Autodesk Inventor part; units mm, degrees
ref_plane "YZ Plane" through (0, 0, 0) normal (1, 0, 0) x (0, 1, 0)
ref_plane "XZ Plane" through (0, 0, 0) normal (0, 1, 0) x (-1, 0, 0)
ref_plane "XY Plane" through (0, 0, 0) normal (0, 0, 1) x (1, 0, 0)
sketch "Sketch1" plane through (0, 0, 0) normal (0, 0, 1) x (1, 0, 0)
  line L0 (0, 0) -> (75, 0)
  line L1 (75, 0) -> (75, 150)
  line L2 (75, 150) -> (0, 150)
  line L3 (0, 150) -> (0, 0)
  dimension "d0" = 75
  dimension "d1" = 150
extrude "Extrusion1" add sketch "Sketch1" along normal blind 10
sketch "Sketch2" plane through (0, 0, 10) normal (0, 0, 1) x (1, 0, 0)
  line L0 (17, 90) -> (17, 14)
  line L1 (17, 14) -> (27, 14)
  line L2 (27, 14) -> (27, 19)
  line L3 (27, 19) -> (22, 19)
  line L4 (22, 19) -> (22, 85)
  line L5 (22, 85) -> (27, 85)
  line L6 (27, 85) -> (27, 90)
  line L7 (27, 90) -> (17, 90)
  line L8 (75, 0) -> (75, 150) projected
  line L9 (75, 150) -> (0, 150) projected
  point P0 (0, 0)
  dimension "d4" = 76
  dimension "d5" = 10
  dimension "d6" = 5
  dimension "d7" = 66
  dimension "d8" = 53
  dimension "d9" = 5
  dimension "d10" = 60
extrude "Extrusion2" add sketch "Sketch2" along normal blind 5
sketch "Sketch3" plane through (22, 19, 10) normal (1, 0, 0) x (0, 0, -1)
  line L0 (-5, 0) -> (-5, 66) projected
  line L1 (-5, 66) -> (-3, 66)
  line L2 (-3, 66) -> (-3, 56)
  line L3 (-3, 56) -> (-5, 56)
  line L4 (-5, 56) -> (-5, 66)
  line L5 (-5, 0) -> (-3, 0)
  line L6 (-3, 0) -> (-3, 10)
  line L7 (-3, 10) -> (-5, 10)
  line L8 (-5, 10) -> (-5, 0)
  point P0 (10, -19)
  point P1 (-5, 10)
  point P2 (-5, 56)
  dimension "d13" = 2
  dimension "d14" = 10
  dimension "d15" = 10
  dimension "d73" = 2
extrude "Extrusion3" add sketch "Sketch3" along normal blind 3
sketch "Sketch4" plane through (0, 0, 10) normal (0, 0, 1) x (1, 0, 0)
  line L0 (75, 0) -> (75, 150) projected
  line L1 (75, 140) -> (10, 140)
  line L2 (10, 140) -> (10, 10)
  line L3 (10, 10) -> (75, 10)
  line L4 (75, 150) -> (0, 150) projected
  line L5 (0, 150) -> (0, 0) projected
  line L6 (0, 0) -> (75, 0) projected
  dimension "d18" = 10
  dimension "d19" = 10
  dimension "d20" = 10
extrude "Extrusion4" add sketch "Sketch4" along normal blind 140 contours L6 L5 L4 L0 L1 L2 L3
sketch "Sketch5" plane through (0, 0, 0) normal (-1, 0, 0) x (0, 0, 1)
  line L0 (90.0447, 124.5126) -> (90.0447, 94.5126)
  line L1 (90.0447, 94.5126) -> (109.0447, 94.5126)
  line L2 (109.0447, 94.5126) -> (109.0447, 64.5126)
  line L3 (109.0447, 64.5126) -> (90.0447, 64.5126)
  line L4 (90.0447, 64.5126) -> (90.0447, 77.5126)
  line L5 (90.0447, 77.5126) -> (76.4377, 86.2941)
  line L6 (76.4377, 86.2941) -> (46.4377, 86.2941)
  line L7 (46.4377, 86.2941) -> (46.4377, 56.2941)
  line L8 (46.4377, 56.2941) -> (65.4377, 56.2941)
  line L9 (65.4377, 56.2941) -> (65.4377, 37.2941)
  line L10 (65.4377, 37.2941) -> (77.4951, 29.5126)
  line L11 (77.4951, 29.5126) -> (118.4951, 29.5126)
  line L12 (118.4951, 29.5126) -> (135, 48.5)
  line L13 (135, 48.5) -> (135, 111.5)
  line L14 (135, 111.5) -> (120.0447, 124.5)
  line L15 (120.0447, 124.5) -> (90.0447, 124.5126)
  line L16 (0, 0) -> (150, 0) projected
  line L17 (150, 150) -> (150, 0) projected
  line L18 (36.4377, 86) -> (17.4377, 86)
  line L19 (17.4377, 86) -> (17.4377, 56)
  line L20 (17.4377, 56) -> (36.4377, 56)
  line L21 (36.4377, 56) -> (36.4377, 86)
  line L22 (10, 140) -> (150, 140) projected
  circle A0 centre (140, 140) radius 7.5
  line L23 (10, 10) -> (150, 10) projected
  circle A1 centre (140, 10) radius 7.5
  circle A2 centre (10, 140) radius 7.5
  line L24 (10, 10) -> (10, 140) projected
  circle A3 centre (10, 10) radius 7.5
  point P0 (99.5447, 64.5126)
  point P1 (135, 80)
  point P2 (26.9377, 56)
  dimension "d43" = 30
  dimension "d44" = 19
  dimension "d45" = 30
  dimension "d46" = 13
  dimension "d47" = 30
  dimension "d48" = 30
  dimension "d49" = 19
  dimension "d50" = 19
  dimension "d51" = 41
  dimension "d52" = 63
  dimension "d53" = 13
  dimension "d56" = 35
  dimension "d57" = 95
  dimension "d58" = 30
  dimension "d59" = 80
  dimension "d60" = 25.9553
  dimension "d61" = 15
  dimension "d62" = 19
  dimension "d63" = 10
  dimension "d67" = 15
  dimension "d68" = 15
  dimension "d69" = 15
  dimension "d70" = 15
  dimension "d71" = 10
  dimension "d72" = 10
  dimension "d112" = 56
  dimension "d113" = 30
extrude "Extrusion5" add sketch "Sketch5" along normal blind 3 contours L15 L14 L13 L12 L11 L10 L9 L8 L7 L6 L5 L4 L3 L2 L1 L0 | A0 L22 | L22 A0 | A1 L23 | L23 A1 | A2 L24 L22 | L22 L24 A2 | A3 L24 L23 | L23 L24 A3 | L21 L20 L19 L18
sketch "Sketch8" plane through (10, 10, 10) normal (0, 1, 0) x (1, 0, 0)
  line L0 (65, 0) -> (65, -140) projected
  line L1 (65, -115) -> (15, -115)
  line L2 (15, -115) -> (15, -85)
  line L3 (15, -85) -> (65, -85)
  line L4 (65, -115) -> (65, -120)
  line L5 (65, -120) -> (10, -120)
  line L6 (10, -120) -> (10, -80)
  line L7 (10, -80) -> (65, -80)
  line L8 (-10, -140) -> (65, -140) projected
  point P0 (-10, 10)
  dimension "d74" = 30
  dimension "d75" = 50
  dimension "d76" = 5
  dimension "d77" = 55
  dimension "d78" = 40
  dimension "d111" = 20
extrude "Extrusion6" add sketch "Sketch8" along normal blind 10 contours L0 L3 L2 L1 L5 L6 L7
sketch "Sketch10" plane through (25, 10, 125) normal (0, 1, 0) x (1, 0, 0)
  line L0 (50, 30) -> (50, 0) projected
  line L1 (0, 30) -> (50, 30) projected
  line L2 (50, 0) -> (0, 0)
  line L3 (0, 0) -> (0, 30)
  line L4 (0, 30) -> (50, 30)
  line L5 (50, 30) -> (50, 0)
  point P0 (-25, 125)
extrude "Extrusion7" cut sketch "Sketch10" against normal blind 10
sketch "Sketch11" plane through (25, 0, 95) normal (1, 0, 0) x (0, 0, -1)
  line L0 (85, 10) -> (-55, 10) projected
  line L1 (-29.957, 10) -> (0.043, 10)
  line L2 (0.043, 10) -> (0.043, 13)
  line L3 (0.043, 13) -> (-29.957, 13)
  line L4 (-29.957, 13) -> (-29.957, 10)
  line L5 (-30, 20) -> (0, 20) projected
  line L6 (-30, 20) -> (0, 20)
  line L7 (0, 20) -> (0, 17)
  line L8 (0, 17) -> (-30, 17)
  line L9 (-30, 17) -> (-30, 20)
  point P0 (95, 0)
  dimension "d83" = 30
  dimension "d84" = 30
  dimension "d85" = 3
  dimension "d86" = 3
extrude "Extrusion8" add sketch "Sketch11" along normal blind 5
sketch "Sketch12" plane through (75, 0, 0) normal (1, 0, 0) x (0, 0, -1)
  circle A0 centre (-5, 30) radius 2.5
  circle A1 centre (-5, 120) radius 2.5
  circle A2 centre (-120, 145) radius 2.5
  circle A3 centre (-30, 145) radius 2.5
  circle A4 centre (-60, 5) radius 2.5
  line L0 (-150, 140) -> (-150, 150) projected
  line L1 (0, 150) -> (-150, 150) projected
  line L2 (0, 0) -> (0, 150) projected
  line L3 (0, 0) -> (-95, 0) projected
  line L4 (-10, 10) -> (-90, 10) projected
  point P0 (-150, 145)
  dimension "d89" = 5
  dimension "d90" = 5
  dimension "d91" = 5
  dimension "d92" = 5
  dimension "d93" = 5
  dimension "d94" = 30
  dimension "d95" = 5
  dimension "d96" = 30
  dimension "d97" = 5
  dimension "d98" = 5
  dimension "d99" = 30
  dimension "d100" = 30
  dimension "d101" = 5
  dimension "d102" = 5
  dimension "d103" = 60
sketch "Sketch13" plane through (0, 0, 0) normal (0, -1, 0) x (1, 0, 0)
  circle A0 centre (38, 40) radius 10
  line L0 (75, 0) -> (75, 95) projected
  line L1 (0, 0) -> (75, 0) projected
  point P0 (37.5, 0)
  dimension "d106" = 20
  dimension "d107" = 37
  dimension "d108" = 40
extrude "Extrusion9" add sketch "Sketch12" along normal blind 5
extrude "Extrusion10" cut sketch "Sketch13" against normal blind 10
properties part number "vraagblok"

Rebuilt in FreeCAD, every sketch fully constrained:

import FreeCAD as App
import Part
import Sketcher
Q = App.Units.Quantity


def add_polygon(sketch, points):
    """Adds a closed chain of lines whose ends are joined by coincident constraints."""
    first, n = sketch.GeometryCount, len(points)
    for a, b in zip(points, points[1:] + points[:1]):
        sketch.addGeometry(Part.LineSegment(App.Vector(*a, 0), App.Vector(*b, 0)), False)
    for i in range(n):
        sketch.addConstraint(Sketcher.Constraint("Coincident", first + i, 2, first + (i + 1) % n, 1))

doc = App.newDocument("Part")
body = doc.addObject("PartDesign::Body", "Body")

sketch1 = doc.addObject("Sketcher::SketchObject", "Sketch")
body.addObject(sketch1)
sketch1.AttachmentSupport = (doc.XY_Plane, [""])
sketch1.MapMode = "FlatFace"
add_polygon(sketch1, [(0, 150), (0, 0), (75, 0), (75, 150)])
sketch1.addConstraint(Sketcher.Constraint("Vertical", 0))
sketch1.addConstraint(Sketcher.Constraint("Horizontal", 1))
sketch1.addConstraint(Sketcher.Constraint("Vertical", 2))
sketch1.addConstraint(Sketcher.Constraint("Horizontal", 3))
sketch1.addConstraint(Sketcher.Constraint("Coincident", 0, 2, -1, 1))
sketch1.addConstraint(Sketcher.Constraint("DistanceX", 1, 1, 1, 2, Q("75 mm")))
sketch1.addConstraint(Sketcher.Constraint("DistanceY", 0, 2, 0, 1, Q("150 mm")))
pad1 = doc.addObject("PartDesign::Pad", "Pad")
body.addObject(pad1)
pad1.Profile = sketch1
pad1.Length = 10

sketch2 = doc.addObject("Sketcher::SketchObject", "Sketch001")
body.addObject(sketch2)
sketch2.AttachmentSupport = (doc.XY_Plane, [""])
sketch2.MapMode = "FlatFace"
sketch2.AttachmentOffset = App.Placement(App.Vector(0, 0, 10), App.Rotation())
add_polygon(sketch2, [(27, 90), (17, 90), (17, 14), (27, 14), (27, 19), (22, 19), (22, 85), (27, 85)])
sketch2.addConstraint(Sketcher.Constraint("Horizontal", 0))
sketch2.addConstraint(Sketcher.Constraint("Vertical", 1))
sketch2.addConstraint(Sketcher.Constraint("Horizontal", 2))
sketch2.addConstraint(Sketcher.Constraint("Vertical", 3))
sketch2.addConstraint(Sketcher.Constraint("Horizontal", 4))
sketch2.addConstraint(Sketcher.Constraint("Vertical", 5))
sketch2.addConstraint(Sketcher.Constraint("Horizontal", 6))
sketch2.addConstraint(Sketcher.Constraint("Vertical", 7))
sketch2.addConstraint(Sketcher.Constraint("Vertical", 3, 2, 6, 2))
sketch2.addConstraint(Sketcher.Constraint("Equal", 6, 3))
sketch2.addConstraint(Sketcher.Constraint("Equal", 3, 7))
sketch2.addConstraint(Sketcher.Constraint("DistanceX", 0, 2, 0, 1, Q("10 mm")))
sketch2.addConstraint(Sketcher.Constraint("DistanceX", 4, 2, 4, 1, Q("5 mm")))
sketch2.addConstraint(Sketcher.Constraint("DistanceY", 1, 2, 1, 1, Q("76 mm")))
sketch2.addConstraint(Sketcher.Constraint("DistanceX", -1, 1, 0, 2, Q("17 mm")))
sketch2.addConstraint(Sketcher.Constraint("DistanceY", -1, 1, 0, 2, Q("90 mm")))
pad2 = doc.addObject("PartDesign::Pad", "Pad001")
body.addObject(pad2)
pad2.Profile = sketch2
pad2.Length = 5

sketch3 = doc.addObject("Sketcher::SketchObject", "Sketch002")
body.addObject(sketch3)
sketch3.AttachmentSupport = (doc.YZ_Plane, [""])
sketch3.MapMode = "FlatFace"
sketch3.AttachmentOffset = App.Placement(App.Vector(0, 0, 22), App.Rotation())
add_polygon(sketch3, [(85, 15), (75, 15), (75, 13), (85, 13)])
add_polygon(sketch3, [(29, 15), (19, 15), (19, 13), (29, 13)])
sketch3.addConstraint(Sketcher.Constraint("Horizontal", 0))
sketch3.addConstraint(Sketcher.Constraint("Vertical", 1))
sketch3.addConstraint(Sketcher.Constraint("Horizontal", 2))
sketch3.addConstraint(Sketcher.Constraint("Vertical", 3))
sketch3.addConstraint(Sketcher.Constraint("Horizontal", 4))
sketch3.addConstraint(Sketcher.Constraint("Vertical", 5))
sketch3.addConstraint(Sketcher.Constraint("Horizontal", 6))
sketch3.addConstraint(Sketcher.Constraint("Vertical", 7))
sketch3.addConstraint(Sketcher.Constraint("Horizontal", 3, 2, 4, 2))
sketch3.addConstraint(Sketcher.Constraint("Horizontal", 2, 2, 5, 2))
sketch3.addConstraint(Sketcher.Constraint("Equal", 2, 4))
sketch3.addConstraint(Sketcher.Constraint("DistanceX", 0, 2, 0, 1, Q("10 mm")))
sketch3.addConstraint(Sketcher.Constraint("DistanceY", 1, 2, 1, 1, Q("2 mm")))
sketch3.addConstraint(Sketcher.Constraint("DistanceX", -1, 1, 0, 2, Q("75 mm")))
sketch3.addConstraint(Sketcher.Constraint("DistanceY", -1, 1, 0, 2, Q("15 mm")))
sketch3.addConstraint(Sketcher.Constraint("DistanceX", -1, 1, 4, 2, Q("19 mm")))
pad3 = doc.addObject("PartDesign::Pad", "Pad002")
body.addObject(pad3)
pad3.Profile = sketch3
pad3.Length = 3

sketch4 = doc.addObject("Sketcher::SketchObject", "Sketch003")
body.addObject(sketch4)
sketch4.AttachmentSupport = (doc.XY_Plane, [""])
sketch4.MapMode = "FlatFace"
sketch4.AttachmentOffset = App.Placement(App.Vector(0, 0, 10), App.Rotation())
add_polygon(sketch4, [(0, 0), (75, 0), (75, 10), (10, 10), (10, 140), (75, 140), (75, 150), (0, 150)])
sketch4.addConstraint(Sketcher.Constraint("Horizontal", 0))
sketch4.addConstraint(Sketcher.Constraint("Vertical", 1))
sketch4.addConstraint(Sketcher.Constraint("Horizontal", 2))
sketch4.addConstraint(Sketcher.Constraint("Vertical", 3))
sketch4.addConstraint(Sketcher.Constraint("Horizontal", 4))
sketch4.addConstraint(Sketcher.Constraint("Vertical", 5))
sketch4.addConstraint(Sketcher.Constraint("Horizontal", 6))
sketch4.addConstraint(Sketcher.Constraint("Vertical", 7))
sketch4.addConstraint(Sketcher.Constraint("Coincident", 7, 2, -1, 1))
sketch4.addConstraint(Sketcher.Constraint("Vertical", 1, 2, 4, 2))
sketch4.addConstraint(Sketcher.Constraint("Equal", 1, 5))
sketch4.addConstraint(Sketcher.Constraint("DistanceY", 1, 1, 1, 2, Q("10 mm")))
sketch4.addConstraint(Sketcher.Constraint("DistanceX", -1, 1, 2, 2, Q("10 mm")))
sketch4.addConstraint(Sketcher.Constraint("DistanceX", 0, 1, 0, 2, Q("75 mm")))
sketch4.addConstraint(Sketcher.Constraint("DistanceY", 3, 1, 3, 2, Q("130 mm")))
pad4 = doc.addObject("PartDesign::Pad", "Pad003")
body.addObject(pad4)
pad4.Profile = sketch4
pad4.Length = 140

sketch5 = doc.addObject("Sketcher::SketchObject", "Sketch004")
body.addObject(sketch5)
sketch5.AttachmentSupport = (doc.YZ_Plane, [""])
sketch5.MapMode = "FlatFace"
add_polygon(sketch5, [(124, 120), (125, 90), (95, 90), (95, 109), (65, 109), (65, 90), (78, 90), (86, 76), (86, 46), (56, 46), (56, 65), (37, 65), (30, 77), (30, 118), (48, 135), (112, 135)])
sketch5.addGeometry(Part.Circle(App.Vector(140, 140, 0), App.Vector(0, 0, 1), 8), False)
sketch5.addGeometry(Part.Circle(App.Vector(10, 140, 0), App.Vector(0, 0, 1), 8), False)
sketch5.addGeometry(Part.Circle(App.Vector(140, 10, 0), App.Vector(0, 0, 1), 8), False)
sketch5.addGeometry(Part.Circle(App.Vector(10, 10, 0), App.Vector(0, 0, 1), 8), False)
add_polygon(sketch5, [(56, 36), (86, 36), (86, 17), (56, 17)])
sketch5.addConstraint(Sketcher.Constraint("Horizontal", 1))
sketch5.addConstraint(Sketcher.Constraint("Vertical", 2))
sketch5.addConstraint(Sketcher.Constraint("Horizontal", 3))
sketch5.addConstraint(Sketcher.Constraint("Vertical", 4))
sketch5.addConstraint(Sketcher.Constraint("Horizontal", 5))
sketch5.addConstraint(Sketcher.Constraint("Vertical", 7))
sketch5.addConstraint(Sketcher.Constraint("Horizontal", 8))
sketch5.addConstraint(Sketcher.Constraint("Vertical", 9))
sketch5.addConstraint(Sketcher.Constraint("Horizontal", 10))
sketch5.addConstraint(Sketcher.Constraint("Vertical", 12))
sketch5.addConstraint(Sketcher.Constraint("Horizontal", 14))
sketch5.addConstraint(Sketcher.Constraint("Horizontal", 20))
sketch5.addConstraint(Sketcher.Constraint("Vertical", 21))
sketch5.addConstraint(Sketcher.Constraint("Horizontal", 22))
sketch5.addConstraint(Sketcher.Constraint("Vertical", 23))
sketch5.addConstraint(Sketcher.Constraint("Equal", 16, 17))
sketch5.addConstraint(Sketcher.Constraint("Equal", 17, 18))
sketch5.addConstraint(Sketcher.Constraint("Equal", 18, 19))
sketch5.addConstraint(Sketcher.Constraint("Parallel", 6, 11))
sketch5.addConstraint(Sketcher.Constraint("Perpendicular", 13, 15))
sketch5.addConstraint(Sketcher.Constraint("Horizontal", 16, 3, 17, 3))
sketch5.addConstraint(Sketcher.Constraint("Horizontal", 18, 3, 19, 3))
sketch5.addConstraint(Sketcher.Constraint("Horizontal", 1, 2, 4, 2))
sketch5.addConstraint(Sketcher.Constraint("Vertical", 16, 3, 18, 3))
sketch5.addConstraint(Sketcher.Constraint("Vertical", 17, 3, 19, 3))
sketch5.addConstraint(Sketcher.Constraint("Equal", 1, 3))
sketch5.addConstraint(Sketcher.Constraint("Equal", 3, 8))
sketch5.addConstraint(Sketcher.Constraint("Equal", 8, 20))
sketch5.addConstraint(Sketcher.Constraint("Equal", 10, 2))
sketch5.addConstraint(Sketcher.Constraint("Equal", 22, 7))
sketch5.addConstraint(Sketcher.Constraint("Equal", 4, 9))
sketch5.addConstraint(Sketcher.Constraint("Equal", 9, 21))
sketch5.addConstraint(Sketcher.Constraint("Diameter", 16, Q("15 mm")))
sketch5.addConstraint(Sketcher.Constraint("DistanceX", 1, 2, 1, 1, Q("30 mm")))
sketch5.addConstraint(Sketcher.Constraint("DistanceX", 5, 1, 5, 2, Q("13 mm")))
sketch5.addConstraint(Sketcher.Constraint("DistanceX", 10, 2, 10, 1, Q("19 mm")))
sketch5.addConstraint(Sketcher.Constraint("DistanceX", 14, 1, 14, 2, Q("63 mm")))
sketch5.addConstraint(Sketcher.Constraint("DistanceY", 12, 1, 12, 2, Q("41 mm")))
sketch5.addConstraint(Sketcher.Constraint("Distance", 0, Q("30 mm")))
sketch5.addConstraint(Sketcher.Constraint("DistanceX", -1, 1, 17, 3, Q("10 mm")))
sketch5.addConstraint(Sketcher.Constraint("DistanceY", -1, 1, 18, 3, Q("10 mm")))
sketch5.addConstraint(Sketcher.Constraint("DistanceX", -1, 1, 22, 2, Q("56 mm")))
sketch5.addConstraint(Sketcher.Constraint("DistanceX", 11, 2, 4, 2, Q("35 mm")))
sketch5.addConstraint(Sketcher.Constraint("DistanceX", 14, 2, 15, 2, Q("13 mm")))
sketch5.addConstraint(Sketcher.Constraint("DistanceY", 20, 2, 7, 2, Q("10 mm")))
sketch5.addConstraint(Sketcher.Constraint("Angle", 13, Q("40.999 deg")))
sketch5.addConstraint(Sketcher.Constraint("DistanceX", -1, 1, 16, 3, Q("140 mm")))
sketch5.addConstraint(Sketcher.Constraint("DistanceY", -1, 1, 16, 3, Q("140 mm")))
sketch5.addConstraint(Sketcher.Constraint("DistanceY", -1, 1, 13, 2, Q("135 mm")))
sketch5.addConstraint(Sketcher.Constraint("DistanceX", -1, 1, 13, 2, Q("48.5 mm")))
sketch5.addConstraint(Sketcher.Constraint("DistanceX", -1, 1, 6, 2, Q("86.294 mm")))
sketch5.addConstraint(Sketcher.Constraint("DistanceY", -1, 1, 11, 2, Q("77.495 mm")))
pad5 = doc.addObject("PartDesign::Pad", "Pad004")
body.addObject(pad5)
pad5.Profile = sketch5
pad5.Length = 3
pad5.Reversed = True

sketch6 = doc.addObject("Sketcher::SketchObject", "Sketch005")
body.addObject(sketch6)
sketch6.AttachmentSupport = (doc.XZ_Plane, [""])
sketch6.MapMode = "FlatFace"
sketch6.AttachmentOffset = App.Placement(App.Vector(0, 0, -10), App.Rotation())
add_polygon(sketch6, [(75, 95), (75, 90), (20, 90), (20, 130), (75, 130), (75, 125), (25, 125), (25, 95)])
sketch6.addConstraint(Sketcher.Constraint("Vertical", 0))
sketch6.addConstraint(Sketcher.Constraint("Horizontal", 1))
sketch6.addConstraint(Sketcher.Constraint("Vertical", 2))
sketch6.addConstraint(Sketcher.Constraint("Horizontal", 3))
sketch6.addConstraint(Sketcher.Constraint("Vertical", 4))
sketch6.addConstraint(Sketcher.Constraint("Horizontal", 5))
sketch6.addConstraint(Sketcher.Constraint("Vertical", 6))
sketch6.addConstraint(Sketcher.Constraint("Horizontal", 7))
sketch6.addConstraint(Sketcher.Constraint("Vertical", 0, 2, 3, 2))
sketch6.addConstraint(Sketcher.Constraint("Equal", 0, 4))
sketch6.addConstraint(Sketcher.Constraint("DistanceX", 1, 2, 1, 1, Q("55 mm")))
sketch6.addConstraint(Sketcher.Constraint("DistanceX", 5, 2, 5, 1, Q("50 mm")))
sketch6.addConstraint(Sketcher.Constraint("DistanceY", 0, 2, 0, 1, Q("5 mm")))
sketch6.addConstraint(Sketcher.Constraint("DistanceY", 2, 1, 2, 2, Q("40 mm")))
sketch6.addConstraint(Sketcher.Constraint("DistanceX", -1, 1, 1, 2, Q("20 mm")))
sketch6.addConstraint(Sketcher.Constraint("DistanceY", -1, 1, 0, 2, Q("90 mm")))
pad6 = doc.addObject("PartDesign::Pad", "Pad005")
body.addObject(pad6)
pad6.Profile = sketch6
pad6.Length = 10
pad6.Reversed = True

sketch7 = doc.addObject("Sketcher::SketchObject", "Sketch006")
body.addObject(sketch7)
sketch7.AttachmentSupport = (doc.XZ_Plane, [""])
sketch7.MapMode = "FlatFace"
sketch7.AttachmentOffset = App.Placement(App.Vector(0, 0, -10), App.Rotation())
add_polygon(sketch7, [(75, 125), (75, 95), (25, 95), (25, 125)])
sketch7.addConstraint(Sketcher.Constraint("Vertical", 0))
sketch7.addConstraint(Sketcher.Constraint("Horizontal", 1))
sketch7.addConstraint(Sketcher.Constraint("Vertical", 2))
sketch7.addConstraint(Sketcher.Constraint("Horizontal", 3))
sketch7.addConstraint(Sketcher.Constraint("DistanceX", 1, 2, 1, 1, Q("50 mm")))
sketch7.addConstraint(Sketcher.Constraint("DistanceY", 0, 2, 0, 1, Q("30 mm")))
sketch7.addConstraint(Sketcher.Constraint("DistanceX", -1, 1, 0, 2, Q("75 mm")))
sketch7.addConstraint(Sketcher.Constraint("DistanceY", -1, 1, 0, 2, Q("95 mm")))
pocket1 = doc.addObject("PartDesign::Pocket", "Pocket")
body.addObject(pocket1)
pocket1.Profile = sketch7
pocket1.Length = 10
pocket1.Reversed = True

sketch8 = doc.addObject("Sketcher::SketchObject", "Sketch007")
body.addObject(sketch8)
sketch8.AttachmentSupport = (doc.YZ_Plane, [""])
sketch8.MapMode = "FlatFace"
sketch8.AttachmentOffset = App.Placement(App.Vector(0, 0, 25), App.Rotation())
add_polygon(sketch8, [(10, 125), (10, 95), (13, 95), (13, 125)])
add_polygon(sketch8, [(20, 95), (20, 125), (17, 125), (17, 95)])
sketch8.addConstraint(Sketcher.Constraint("Vertical", 0))
sketch8.addConstraint(Sketcher.Constraint("Horizontal", 1))
sketch8.addConstraint(Sketcher.Constraint("Vertical", 2))
sketch8.addConstraint(Sketcher.Constraint("Horizontal", 3))
sketch8.addConstraint(Sketcher.Constraint("Vertical", 4))
sketch8.addConstraint(Sketcher.Constraint("Horizontal", 5))
sketch8.addConstraint(Sketcher.Constraint("Vertical", 6))
sketch8.addConstraint(Sketcher.Constraint("Horizontal", 7))
sketch8.addConstraint(Sketcher.Constraint("Equal", 3, 5))
sketch8.addConstraint(Sketcher.Constraint("Equal", 2, 4))
sketch8.addConstraint(Sketcher.Constraint("DistanceX", 1, 1, 1, 2, Q("3 mm")))
sketch8.addConstraint(Sketcher.Constraint("DistanceY", 0, 2, 0, 1, Q("30 mm")))
sketch8.addConstraint(Sketcher.Constraint("DistanceX", -1, 1, 0, 2, Q("10 mm")))
sketch8.addConstraint(Sketcher.Constraint("DistanceX", -1, 1, 4, 2, Q("20 mm")))
sketch8.addConstraint(Sketcher.Constraint("DistanceY", -1, 1, 4, 2, Q("125 mm")))
sketch8.addConstraint(Sketcher.Constraint("DistanceY", -1, 1, 0, 2, Q("94.957 mm")))
pad7 = doc.addObject("PartDesign::Pad", "Pad006")
body.addObject(pad7)
pad7.Profile = sketch8
pad7.Length = 5

sketch9 = doc.addObject("Sketcher::SketchObject", "Sketch008")
body.addObject(sketch9)
sketch9.AttachmentSupport = (doc.YZ_Plane, [""])
sketch9.MapMode = "FlatFace"
sketch9.AttachmentOffset = App.Placement(App.Vector(0, 0, 75), App.Rotation())
sketch9.addGeometry(Part.Circle(App.Vector(30, 5, 0), App.Vector(0, 0, 1), 2.5), False)
sketch9.addGeometry(Part.Circle(App.Vector(120, 5, 0), App.Vector(0, 0, 1), 2.5), False)
sketch9.addGeometry(Part.Circle(App.Vector(145, 120, 0), App.Vector(0, 0, 1), 2.5), False)
sketch9.addGeometry(Part.Circle(App.Vector(145, 30, 0), App.Vector(0, 0, 1), 2.5), False)
sketch9.addGeometry(Part.Circle(App.Vector(5, 60, 0), App.Vector(0, 0, 1), 2.5), False)
sketch9.addConstraint(Sketcher.Constraint("Equal", 0, 1))
sketch9.addConstraint(Sketcher.Constraint("Equal", 1, 2))
sketch9.addConstraint(Sketcher.Constraint("Equal", 2, 3))
sketch9.addConstraint(Sketcher.Constraint("Equal", 3, 4))
sketch9.addConstraint(Sketcher.Constraint("Horizontal", 0, 3, 1, 3))
sketch9.addConstraint(Sketcher.Constraint("Vertical", 2, 3, 3, 3))
sketch9.addConstraint(Sketcher.Constraint("Diameter", 0, Q("5 mm")))
sketch9.addConstraint(Sketcher.Constraint("DistanceX", -1, 1, 0, 3, Q("30 mm")))
sketch9.addConstraint(Sketcher.Constraint("DistanceY", -1, 1, 0, 3, Q("5 mm")))
sketch9.addConstraint(Sketcher.Constraint("DistanceY", -1, 1, 3, 3, Q("30 mm")))
sketch9.addConstraint(Sketcher.Constraint("DistanceX", -1, 1, 4, 3, Q("5 mm")))
sketch9.addConstraint(Sketcher.Constraint("DistanceY", -1, 1, 4, 3, Q("60 mm")))
sketch9.addConstraint(Sketcher.Constraint("DistanceY", 4, 3, 2, 3, Q("60 mm")))
sketch9.addConstraint(Sketcher.Constraint("DistanceX", -1, 1, 1, 3, Q("120 mm")))
sketch9.addConstraint(Sketcher.Constraint("DistanceX", -1, 1, 2, 3, Q("145 mm")))
pad8 = doc.addObject("PartDesign::Pad", "Pad007")
body.addObject(pad8)
pad8.Profile = sketch9
pad8.Length = 5

sketch10 = doc.addObject("Sketcher::SketchObject", "Sketch009")
body.addObject(sketch10)
sketch10.AttachmentSupport = (doc.XZ_Plane, [""])
sketch10.MapMode = "FlatFace"
sketch10.addGeometry(Part.Circle(App.Vector(38, 40, 0), App.Vector(0, 0, 1), 10), False)
sketch10.addConstraint(Sketcher.Constraint("Diameter", 0, Q("20 mm")))
sketch10.addConstraint(Sketcher.Constraint("DistanceY", -1, 1, 0, 3, Q("40 mm")))
sketch10.addConstraint(Sketcher.Constraint("DistanceX", -1, 1, 0, 3, Q("38 mm")))
pocket2 = doc.addObject("PartDesign::Pocket", "Pocket001")
body.addObject(pocket2)
pocket2.Profile = sketch10
pocket2.Length = 10

doc.recompute()
